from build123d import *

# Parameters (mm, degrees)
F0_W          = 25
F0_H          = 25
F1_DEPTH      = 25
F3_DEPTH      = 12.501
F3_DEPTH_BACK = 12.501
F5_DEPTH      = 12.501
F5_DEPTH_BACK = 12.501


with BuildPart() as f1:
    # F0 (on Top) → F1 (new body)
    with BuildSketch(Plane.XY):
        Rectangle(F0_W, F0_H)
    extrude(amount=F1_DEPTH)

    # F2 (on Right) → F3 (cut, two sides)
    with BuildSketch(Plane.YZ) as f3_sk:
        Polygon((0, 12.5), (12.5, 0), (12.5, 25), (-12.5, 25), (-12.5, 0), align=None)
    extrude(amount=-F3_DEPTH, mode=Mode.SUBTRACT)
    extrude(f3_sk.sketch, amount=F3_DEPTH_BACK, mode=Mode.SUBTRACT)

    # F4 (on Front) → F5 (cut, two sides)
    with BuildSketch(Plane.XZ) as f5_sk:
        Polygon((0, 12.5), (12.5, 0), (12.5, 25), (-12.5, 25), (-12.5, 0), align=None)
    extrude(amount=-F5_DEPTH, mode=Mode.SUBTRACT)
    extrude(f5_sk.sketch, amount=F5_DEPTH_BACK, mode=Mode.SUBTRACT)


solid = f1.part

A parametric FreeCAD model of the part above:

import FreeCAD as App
import Part
import Sketcher

V = App.Vector
Q = App.Units.Quantity


def add_polygon(sketch, points):
    """Adds a closed chain of lines whose ends are joined by coincident constraints."""
    first, n = sketch.GeometryCount, len(points)
    for a, b in zip(points, points[1:] + points[:1]):
        sketch.addGeometry(Part.LineSegment(App.Vector(*a, 0), App.Vector(*b, 0)), False)
    for i in range(n):
        sketch.addConstraint(Sketcher.Constraint("Coincident", first + i, 2, first + (i + 1) % n, 1))

doc = App.newDocument("Part")
body = doc.addObject("PartDesign::Body", "Body")

# Sketch on XY plane
sketch1 = body.newObject("Sketcher::SketchObject", "Sketch")
sketch1.AttachmentSupport = (doc.getObject("XY_Plane"), [""])
sketch1.MapMode = "FlatFace"
add_polygon(sketch1, [(-12, 12), (-12, -12), (12, -12), (12, 12)])  # lines 0-3
sketch1.addConstraint(Sketcher.Constraint("Vertical", 0))
sketch1.addConstraint(Sketcher.Constraint("Horizontal", 1))
sketch1.addConstraint(Sketcher.Constraint("Vertical", 2))
sketch1.addConstraint(Sketcher.Constraint("Horizontal", 3))
sketch1.addConstraint(Sketcher.Constraint("Symmetric", 0, 2, 2, 2, -1, 1))
sketch1.addConstraint(Sketcher.Constraint("Equal", 3, 0))
sketch1.addConstraint(Sketcher.Constraint("DistanceX", 1, 1, 1, 2, Q("25 mm")))
pad1 = body.newObject("PartDesign::Pad", "Pad")
pad1.Profile = sketch1
pad1.Length = 25

# Sketch on YZ plane
sketch2 = body.newObject("Sketcher::SketchObject", "Sketch001")
sketch2.AttachmentSupport = (doc.getObject("YZ_Plane"), [""])
sketch2.MapMode = "FlatFace"
add_polygon(sketch2, [(0, 12), (12, 0), (12, 25), (-12, 25), (-12, 0)])  # lines 0-4
sketch2.addConstraint(Sketcher.Constraint("Vertical", 1))
sketch2.addConstraint(Sketcher.Constraint("Horizontal", 2))
sketch2.addConstraint(Sketcher.Constraint("Vertical", 3))
sketch2.addConstraint(Sketcher.Constraint("Symmetric", 0, 2, 3, 2, -1, 1))
sketch2.addConstraint(Sketcher.Constraint("PointOnObject", 0, 2, -1))
sketch2.addConstraint(Sketcher.Constraint("PointOnObject", 4, 2, -2))
sketch2.addConstraint(Sketcher.Constraint("Perpendicular", 0, 4))
sketch2.addConstraint(Sketcher.Constraint("Equal", 2, 1))
sketch2.addConstraint(Sketcher.Constraint("DistanceX", 2, 2, 2, 1, Q("25 mm")))
pocket1 = body.newObject("PartDesign::Pocket", "Pocket")
pocket1.Profile = sketch2
pocket1.Type = "ThroughAll"
pocket1.Midplane = True

# Sketch on XZ plane
sketch3 = body.newObject("Sketcher::SketchObject", "Sketch002")
sketch3.AttachmentSupport = (doc.getObject("XZ_Plane"), [""])
sketch3.MapMode = "FlatFace"
add_polygon(sketch3, [(0, 12), (12, 0), (12, 25), (-12, 25), (-12, 0)])  # lines 0-4
sketch3.addConstraint(Sketcher.Constraint("Vertical", 1))
sketch3.addConstraint(Sketcher.Constraint("Horizontal", 2))
sketch3.addConstraint(Sketcher.Constraint("Vertical", 3))
sketch3.addConstraint(Sketcher.Constraint("Symmetric", 0, 2, 3, 2, -1, 1))
sketch3.addConstraint(Sketcher.Constraint("PointOnObject", 0, 2, -1))
sketch3.addConstraint(Sketcher.Constraint("PointOnObject", 4, 2, -2))
sketch3.addConstraint(Sketcher.Constraint("Perpendicular", 0, 4))
sketch3.addConstraint(Sketcher.Constraint("Equal", 2, 1))
sketch3.addConstraint(Sketcher.Constraint("DistanceX", 2, 2, 2, 1, Q("25 mm")))
pocket2 = body.newObject("PartDesign::Pocket", "Pocket001")
pocket2.Profile = sketch3
pocket2.Type = "ThroughAll"
pocket2.Midplane = True

doc.recompute()
